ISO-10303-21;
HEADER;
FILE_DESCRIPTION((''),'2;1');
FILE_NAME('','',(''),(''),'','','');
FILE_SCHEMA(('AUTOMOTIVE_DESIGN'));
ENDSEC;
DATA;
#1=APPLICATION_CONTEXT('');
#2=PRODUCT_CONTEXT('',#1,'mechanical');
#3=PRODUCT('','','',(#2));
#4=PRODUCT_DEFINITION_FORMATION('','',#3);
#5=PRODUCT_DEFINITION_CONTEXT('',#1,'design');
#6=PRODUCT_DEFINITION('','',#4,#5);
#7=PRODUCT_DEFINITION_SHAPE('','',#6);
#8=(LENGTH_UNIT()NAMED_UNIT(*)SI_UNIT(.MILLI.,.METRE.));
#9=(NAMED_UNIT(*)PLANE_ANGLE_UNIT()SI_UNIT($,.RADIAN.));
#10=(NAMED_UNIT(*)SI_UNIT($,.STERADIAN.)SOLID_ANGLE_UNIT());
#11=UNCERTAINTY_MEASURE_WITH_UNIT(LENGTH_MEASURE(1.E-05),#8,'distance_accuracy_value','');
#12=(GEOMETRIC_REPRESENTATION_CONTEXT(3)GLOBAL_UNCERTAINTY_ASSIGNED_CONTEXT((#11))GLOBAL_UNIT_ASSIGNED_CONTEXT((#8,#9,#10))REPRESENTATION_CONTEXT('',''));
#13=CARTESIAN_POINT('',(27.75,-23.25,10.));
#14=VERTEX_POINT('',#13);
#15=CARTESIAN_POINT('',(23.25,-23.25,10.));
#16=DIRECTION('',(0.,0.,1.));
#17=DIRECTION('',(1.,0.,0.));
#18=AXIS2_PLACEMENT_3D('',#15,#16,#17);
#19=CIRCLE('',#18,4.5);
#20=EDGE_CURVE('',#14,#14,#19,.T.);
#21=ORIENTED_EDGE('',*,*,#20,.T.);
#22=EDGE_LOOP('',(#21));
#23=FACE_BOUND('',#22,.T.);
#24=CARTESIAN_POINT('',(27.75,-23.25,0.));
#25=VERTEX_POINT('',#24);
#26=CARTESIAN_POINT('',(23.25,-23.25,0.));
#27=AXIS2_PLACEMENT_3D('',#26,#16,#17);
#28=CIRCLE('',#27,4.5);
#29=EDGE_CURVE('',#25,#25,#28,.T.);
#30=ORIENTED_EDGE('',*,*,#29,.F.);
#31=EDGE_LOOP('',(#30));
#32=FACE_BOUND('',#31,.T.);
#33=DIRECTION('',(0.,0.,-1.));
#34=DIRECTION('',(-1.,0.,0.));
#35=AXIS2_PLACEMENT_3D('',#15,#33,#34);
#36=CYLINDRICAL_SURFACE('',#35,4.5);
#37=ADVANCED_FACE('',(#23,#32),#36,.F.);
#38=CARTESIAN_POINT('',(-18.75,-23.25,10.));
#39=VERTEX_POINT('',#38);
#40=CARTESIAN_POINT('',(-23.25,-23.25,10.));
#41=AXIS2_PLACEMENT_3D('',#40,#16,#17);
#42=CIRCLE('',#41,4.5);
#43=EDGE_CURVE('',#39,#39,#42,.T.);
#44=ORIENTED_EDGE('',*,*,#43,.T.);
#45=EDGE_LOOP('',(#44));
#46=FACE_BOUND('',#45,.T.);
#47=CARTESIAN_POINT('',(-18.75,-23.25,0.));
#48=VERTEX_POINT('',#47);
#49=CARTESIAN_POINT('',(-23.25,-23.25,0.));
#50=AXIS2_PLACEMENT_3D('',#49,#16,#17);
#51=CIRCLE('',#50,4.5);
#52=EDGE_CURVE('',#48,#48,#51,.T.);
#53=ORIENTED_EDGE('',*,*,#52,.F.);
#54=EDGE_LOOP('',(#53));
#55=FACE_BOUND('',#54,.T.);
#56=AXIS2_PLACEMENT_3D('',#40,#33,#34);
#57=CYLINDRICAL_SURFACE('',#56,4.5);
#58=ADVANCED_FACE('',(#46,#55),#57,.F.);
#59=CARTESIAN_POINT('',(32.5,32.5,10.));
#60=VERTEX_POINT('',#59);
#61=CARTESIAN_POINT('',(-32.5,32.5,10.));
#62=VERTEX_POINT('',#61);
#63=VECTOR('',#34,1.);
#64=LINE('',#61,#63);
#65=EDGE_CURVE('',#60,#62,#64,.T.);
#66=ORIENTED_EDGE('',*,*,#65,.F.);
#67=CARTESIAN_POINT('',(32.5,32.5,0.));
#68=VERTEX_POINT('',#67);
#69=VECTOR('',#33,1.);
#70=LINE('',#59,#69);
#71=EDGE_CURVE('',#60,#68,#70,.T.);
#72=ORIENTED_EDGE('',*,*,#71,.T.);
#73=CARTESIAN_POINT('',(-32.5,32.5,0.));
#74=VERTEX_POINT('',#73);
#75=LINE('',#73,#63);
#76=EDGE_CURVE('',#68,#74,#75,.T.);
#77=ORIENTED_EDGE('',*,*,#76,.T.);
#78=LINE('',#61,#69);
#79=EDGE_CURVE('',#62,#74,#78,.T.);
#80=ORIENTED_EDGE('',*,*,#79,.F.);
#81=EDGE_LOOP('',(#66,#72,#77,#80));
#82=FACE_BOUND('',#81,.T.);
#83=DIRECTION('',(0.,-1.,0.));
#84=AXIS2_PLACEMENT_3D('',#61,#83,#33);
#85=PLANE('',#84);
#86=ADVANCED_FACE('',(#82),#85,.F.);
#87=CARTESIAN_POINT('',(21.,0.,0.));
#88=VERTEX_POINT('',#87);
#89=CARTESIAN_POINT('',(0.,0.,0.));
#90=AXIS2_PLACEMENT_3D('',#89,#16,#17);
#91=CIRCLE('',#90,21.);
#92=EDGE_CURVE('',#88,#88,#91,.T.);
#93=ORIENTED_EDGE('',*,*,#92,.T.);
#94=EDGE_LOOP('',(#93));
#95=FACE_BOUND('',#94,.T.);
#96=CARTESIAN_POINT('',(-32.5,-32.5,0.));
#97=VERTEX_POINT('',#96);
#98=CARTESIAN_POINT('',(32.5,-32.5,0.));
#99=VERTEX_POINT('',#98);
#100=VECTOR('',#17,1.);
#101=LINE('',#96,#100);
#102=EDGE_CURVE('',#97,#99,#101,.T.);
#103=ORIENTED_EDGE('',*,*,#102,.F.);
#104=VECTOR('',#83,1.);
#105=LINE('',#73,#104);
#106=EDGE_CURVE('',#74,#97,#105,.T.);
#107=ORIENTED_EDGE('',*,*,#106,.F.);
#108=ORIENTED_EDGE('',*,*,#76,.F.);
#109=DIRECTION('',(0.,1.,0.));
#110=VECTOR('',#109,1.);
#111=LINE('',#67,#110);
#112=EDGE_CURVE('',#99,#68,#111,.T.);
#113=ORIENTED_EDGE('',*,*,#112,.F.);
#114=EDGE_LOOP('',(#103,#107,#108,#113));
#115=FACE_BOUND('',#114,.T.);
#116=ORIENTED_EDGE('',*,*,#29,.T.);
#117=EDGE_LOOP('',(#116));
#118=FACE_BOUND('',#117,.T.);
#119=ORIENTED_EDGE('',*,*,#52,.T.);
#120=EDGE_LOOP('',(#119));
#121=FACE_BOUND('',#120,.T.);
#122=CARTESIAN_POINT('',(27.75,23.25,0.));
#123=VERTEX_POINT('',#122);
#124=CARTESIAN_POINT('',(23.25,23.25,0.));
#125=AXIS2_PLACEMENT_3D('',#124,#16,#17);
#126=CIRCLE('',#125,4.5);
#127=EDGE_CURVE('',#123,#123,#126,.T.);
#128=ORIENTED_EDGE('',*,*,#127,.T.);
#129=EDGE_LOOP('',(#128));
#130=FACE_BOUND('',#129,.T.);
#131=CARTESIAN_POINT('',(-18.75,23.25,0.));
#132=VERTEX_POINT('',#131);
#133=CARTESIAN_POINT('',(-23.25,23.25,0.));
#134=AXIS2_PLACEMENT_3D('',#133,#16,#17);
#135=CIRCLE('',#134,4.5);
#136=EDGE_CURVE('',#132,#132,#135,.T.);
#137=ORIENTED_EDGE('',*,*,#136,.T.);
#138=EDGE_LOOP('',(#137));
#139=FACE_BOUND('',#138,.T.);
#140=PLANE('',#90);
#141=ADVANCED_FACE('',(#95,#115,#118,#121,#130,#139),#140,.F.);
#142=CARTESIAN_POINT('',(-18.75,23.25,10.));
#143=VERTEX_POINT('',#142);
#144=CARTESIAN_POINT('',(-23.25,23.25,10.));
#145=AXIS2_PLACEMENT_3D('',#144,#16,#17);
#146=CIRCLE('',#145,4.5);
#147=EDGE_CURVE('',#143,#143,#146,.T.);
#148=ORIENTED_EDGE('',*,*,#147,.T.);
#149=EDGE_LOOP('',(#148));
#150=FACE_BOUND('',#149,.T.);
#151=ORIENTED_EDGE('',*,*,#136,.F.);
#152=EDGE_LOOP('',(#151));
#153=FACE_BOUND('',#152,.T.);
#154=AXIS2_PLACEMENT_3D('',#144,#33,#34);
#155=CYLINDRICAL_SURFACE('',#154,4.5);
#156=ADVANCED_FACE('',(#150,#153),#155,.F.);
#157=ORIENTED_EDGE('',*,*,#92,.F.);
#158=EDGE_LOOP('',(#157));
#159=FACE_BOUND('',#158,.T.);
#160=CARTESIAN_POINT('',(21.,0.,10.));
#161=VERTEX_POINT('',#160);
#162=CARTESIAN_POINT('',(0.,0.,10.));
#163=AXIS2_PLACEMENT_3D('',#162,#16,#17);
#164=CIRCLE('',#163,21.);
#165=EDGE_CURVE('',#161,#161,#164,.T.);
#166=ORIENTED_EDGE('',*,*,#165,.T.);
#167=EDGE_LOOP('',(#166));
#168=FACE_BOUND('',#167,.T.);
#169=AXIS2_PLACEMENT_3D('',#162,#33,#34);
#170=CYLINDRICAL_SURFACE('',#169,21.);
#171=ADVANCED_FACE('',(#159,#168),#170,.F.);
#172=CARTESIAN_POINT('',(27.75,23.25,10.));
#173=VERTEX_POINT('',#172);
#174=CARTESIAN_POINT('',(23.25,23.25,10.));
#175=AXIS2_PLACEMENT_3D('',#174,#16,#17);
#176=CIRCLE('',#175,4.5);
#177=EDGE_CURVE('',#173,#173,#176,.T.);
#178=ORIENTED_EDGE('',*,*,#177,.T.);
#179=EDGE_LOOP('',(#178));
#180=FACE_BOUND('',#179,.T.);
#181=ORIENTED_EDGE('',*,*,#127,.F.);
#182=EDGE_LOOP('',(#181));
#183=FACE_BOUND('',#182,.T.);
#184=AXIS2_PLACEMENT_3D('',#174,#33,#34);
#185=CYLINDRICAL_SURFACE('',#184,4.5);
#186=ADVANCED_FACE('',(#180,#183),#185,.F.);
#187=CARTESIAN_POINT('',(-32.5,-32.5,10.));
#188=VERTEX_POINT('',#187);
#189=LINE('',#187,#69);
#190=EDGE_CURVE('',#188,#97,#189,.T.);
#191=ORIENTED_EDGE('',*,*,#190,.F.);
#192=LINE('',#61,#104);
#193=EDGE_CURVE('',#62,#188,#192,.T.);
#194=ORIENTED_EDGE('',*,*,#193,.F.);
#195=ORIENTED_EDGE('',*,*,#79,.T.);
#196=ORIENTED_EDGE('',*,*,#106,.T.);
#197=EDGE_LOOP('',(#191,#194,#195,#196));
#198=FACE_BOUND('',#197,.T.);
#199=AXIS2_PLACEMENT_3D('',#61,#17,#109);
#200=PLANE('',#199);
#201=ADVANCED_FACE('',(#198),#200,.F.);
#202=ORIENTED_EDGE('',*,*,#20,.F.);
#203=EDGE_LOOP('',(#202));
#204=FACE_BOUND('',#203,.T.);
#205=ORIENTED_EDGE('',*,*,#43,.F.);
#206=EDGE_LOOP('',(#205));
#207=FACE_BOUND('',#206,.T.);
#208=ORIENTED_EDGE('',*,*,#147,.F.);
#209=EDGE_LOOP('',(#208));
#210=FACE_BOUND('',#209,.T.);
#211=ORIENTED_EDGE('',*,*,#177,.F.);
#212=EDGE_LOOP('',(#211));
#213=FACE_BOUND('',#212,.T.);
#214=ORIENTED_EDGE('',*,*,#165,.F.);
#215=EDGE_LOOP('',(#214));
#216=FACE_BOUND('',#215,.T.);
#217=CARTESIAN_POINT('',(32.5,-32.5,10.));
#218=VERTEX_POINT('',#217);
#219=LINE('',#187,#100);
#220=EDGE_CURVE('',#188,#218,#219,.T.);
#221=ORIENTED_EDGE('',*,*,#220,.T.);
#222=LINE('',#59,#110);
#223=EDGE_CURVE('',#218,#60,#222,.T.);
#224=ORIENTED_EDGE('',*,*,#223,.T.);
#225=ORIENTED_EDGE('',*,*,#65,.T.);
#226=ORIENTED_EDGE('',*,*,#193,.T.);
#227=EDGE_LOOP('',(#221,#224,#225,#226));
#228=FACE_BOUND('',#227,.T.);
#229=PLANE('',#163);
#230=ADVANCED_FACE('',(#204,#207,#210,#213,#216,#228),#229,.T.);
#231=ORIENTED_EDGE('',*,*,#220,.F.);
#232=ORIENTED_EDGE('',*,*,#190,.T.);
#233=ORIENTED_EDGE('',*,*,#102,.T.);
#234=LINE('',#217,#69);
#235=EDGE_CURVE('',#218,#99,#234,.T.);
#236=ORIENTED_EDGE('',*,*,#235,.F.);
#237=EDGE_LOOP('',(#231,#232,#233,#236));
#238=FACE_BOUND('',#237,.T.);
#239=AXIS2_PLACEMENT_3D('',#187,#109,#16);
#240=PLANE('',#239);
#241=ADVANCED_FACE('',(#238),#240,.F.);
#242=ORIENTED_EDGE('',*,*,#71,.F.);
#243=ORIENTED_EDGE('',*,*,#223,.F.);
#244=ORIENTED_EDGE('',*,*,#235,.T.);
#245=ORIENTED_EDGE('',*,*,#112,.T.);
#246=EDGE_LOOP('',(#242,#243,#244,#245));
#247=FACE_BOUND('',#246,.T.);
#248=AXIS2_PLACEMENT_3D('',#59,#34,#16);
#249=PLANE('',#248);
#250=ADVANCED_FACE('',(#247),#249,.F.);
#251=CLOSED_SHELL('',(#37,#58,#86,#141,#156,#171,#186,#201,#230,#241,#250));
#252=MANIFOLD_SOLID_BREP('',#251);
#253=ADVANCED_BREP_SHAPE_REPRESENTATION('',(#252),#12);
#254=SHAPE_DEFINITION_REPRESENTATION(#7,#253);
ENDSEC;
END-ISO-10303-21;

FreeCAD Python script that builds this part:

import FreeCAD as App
import Part
import Sketcher
from FreeCAD import Vector

doc = App.newDocument("Part")
params = doc.addObject("Spreadsheet::Sheet", "Params")
for row, (alias, value) in enumerate([
    ("sketch1_diameter", "9 mm"),
    ("sketch1_diameter2", "42 mm"),
    ("sketch1_width", "65 mm"),
    ("pad1_length", "10 mm"),
], start=1):
    params.set(f"A{row}", alias)
    params.set(f"B{row}", "=" + value)
    params.setAlias(f"B{row}", alias)

body = doc.addObject("PartDesign::Body", "Body")

sketch1 = doc.addObject("Sketcher::SketchObject", "Sketch")
body.addObject(sketch1)
sketch1.AttachmentSupport = (doc.XY_Plane, [""])
sketch1.MapMode = "FlatFace"
sketch1.addGeometry(Part.LineSegment(Vector(-32.5, 32.5, 0), Vector(-32.5, -32.5, 0)), False)
sketch1.addGeometry(Part.LineSegment(Vector(-32.5, -32.5, 0), Vector(32.5, -32.5, 0)), False)
sketch1.addGeometry(Part.LineSegment(Vector(32.5, -32.5, 0), Vector(32.5, 32.5, 0)), False)
sketch1.addGeometry(Part.LineSegment(Vector(32.5, 32.5, 0), Vector(-32.5, 32.5, 0)), False)
sketch1.addGeometry(Part.Circle(Vector(-23.2, -23.2, 0), Vector(0, 0, 1), 4.5), False)
sketch1.addGeometry(Part.Circle(Vector(23.2, -23.2, 0), Vector(0, 0, 1), 4.5), False)
sketch1.addGeometry(Part.Circle(Vector(-23.2, 23.2, 0), Vector(0, 0, 1), 4.5), False)
sketch1.addGeometry(Part.Circle(Vector(0, 0, 0), Vector(0, 0, 1), 21), False)
sketch1.addGeometry(Part.Circle(Vector(23.2, 23.2, 0), Vector(0, 0, 1), 4.5), False)
sketch1.addConstraint(Sketcher.Constraint("Coincident", 0, 2, 1, 1))
sketch1.addConstraint(Sketcher.Constraint("Coincident", 1, 2, 2, 1))
sketch1.addConstraint(Sketcher.Constraint("Coincident", 2, 2, 3, 1))
sketch1.addConstraint(Sketcher.Constraint("Coincident", 3, 2, 0, 1))
sketch1.addConstraint(Sketcher.Constraint("Vertical", 0))
sketch1.addConstraint(Sketcher.Constraint("Horizontal", 1))
sketch1.addConstraint(Sketcher.Constraint("Vertical", 2))
sketch1.addConstraint(Sketcher.Constraint("Horizontal", 3))
sketch1.addConstraint(Sketcher.Constraint("Coincident", 7, 3, -1, 1))
sketch1.addConstraint(Sketcher.Constraint("Equal", 4, 5))
sketch1.addConstraint(Sketcher.Constraint("Equal", 5, 6))
sketch1.addConstraint(Sketcher.Constraint("Equal", 6, 8))
sketch1.addConstraint(Sketcher.Constraint("Symmetric", 5, 3, 6, 3, -1, 1))
sketch1.addConstraint(Sketcher.Constraint("Symmetric", 4, 3, 8, 3, -1, 1))
sketch1.addConstraint(Sketcher.Constraint("Symmetric", 0, 2, 2, 2, -1, 1))
sketch1.addConstraint(Sketcher.Constraint("Symmetric", 4, 3, 5, 3, -2))
sketch1.addConstraint(Sketcher.Constraint("Equal", 3, 0))
sketch1.addConstraint(Sketcher.Constraint("Diameter", 4, 9.0))
sketch1.addConstraint(Sketcher.Constraint("Diameter", 7, 42.0))
sketch1.addConstraint(Sketcher.Constraint("DistanceX", 1, 1, 1, 2, 65.0))
sketch1.addConstraint(Sketcher.Constraint("DistanceX", 4, 3, 5, 3, 46.5))
sketch1.addConstraint(Sketcher.Constraint("DistanceY", 4, 3, 6, 3, 46.5))
sketch1.setExpression("Constraints[17]", "Params.sketch1_diameter")
sketch1.setExpression("Constraints[18]", "Params.sketch1_diameter2")
sketch1.setExpression("Constraints[19]", "Params.sketch1_width")
pad1 = doc.addObject("PartDesign::Pad", "Pad")
body.addObject(pad1)
pad1.Profile = sketch1
pad1.setExpression("Length", "Params.pad1_length")

doc.recompute()
